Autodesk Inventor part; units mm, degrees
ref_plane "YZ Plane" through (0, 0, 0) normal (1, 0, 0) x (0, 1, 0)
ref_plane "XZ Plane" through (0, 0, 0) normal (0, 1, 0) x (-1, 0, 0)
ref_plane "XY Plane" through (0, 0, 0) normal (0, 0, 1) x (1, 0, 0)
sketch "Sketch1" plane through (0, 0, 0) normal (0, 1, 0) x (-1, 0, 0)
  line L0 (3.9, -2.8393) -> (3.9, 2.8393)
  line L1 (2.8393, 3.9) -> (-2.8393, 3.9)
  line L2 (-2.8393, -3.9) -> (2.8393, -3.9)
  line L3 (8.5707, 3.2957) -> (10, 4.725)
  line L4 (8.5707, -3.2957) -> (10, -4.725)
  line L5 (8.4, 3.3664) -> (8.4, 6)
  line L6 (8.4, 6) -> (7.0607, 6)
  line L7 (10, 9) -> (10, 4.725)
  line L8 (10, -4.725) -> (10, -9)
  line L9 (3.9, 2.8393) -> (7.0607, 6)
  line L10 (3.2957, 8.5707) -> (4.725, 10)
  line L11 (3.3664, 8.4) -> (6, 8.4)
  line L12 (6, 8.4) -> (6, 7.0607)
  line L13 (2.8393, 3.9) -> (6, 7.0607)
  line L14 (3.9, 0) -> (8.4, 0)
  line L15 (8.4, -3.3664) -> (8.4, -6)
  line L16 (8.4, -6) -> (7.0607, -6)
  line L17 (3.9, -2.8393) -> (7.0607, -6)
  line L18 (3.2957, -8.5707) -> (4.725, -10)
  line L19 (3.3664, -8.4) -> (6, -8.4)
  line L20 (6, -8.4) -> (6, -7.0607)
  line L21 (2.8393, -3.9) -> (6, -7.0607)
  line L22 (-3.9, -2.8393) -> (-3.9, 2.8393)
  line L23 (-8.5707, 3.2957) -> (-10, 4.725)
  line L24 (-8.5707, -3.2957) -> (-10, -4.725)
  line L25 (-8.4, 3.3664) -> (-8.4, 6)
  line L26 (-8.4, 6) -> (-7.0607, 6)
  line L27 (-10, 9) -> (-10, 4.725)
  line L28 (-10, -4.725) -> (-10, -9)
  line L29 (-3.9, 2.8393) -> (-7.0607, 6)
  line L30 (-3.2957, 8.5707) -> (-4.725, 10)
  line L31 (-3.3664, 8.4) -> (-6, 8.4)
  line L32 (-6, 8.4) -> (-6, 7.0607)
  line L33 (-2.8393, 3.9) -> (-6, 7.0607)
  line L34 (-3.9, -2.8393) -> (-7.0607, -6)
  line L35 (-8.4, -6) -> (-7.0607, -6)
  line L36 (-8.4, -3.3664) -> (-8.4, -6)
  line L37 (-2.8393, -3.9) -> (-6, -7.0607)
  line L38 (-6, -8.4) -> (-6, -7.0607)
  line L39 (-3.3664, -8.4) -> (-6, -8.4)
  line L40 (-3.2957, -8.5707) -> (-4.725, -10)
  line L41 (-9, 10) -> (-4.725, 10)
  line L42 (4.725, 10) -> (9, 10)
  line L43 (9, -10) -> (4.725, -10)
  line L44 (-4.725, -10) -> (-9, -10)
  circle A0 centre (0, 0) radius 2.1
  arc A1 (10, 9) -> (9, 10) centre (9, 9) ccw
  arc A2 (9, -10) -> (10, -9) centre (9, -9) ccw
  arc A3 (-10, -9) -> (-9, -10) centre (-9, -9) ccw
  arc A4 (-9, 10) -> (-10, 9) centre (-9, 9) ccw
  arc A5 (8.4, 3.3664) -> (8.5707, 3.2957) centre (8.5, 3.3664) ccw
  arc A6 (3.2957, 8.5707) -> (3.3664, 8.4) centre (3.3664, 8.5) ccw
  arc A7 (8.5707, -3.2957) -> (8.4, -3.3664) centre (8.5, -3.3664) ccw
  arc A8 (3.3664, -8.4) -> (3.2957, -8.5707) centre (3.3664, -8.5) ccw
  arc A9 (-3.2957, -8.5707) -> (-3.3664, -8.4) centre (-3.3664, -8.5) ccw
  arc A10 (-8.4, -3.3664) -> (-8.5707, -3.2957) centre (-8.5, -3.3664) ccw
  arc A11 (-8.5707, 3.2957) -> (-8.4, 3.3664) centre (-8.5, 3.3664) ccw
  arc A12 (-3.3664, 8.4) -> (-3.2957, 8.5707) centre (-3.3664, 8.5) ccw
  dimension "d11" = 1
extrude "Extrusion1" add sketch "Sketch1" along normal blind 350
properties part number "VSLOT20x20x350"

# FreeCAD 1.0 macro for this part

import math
import FreeCAD as App
import Part
import Sketcher
from FreeCAD import Vector
Q = App.Units.Quantity

doc = App.newDocument("Part")
body = doc.addObject("PartDesign::Body", "Body")

# Sketch on XZ plane
sketch1 = body.newObject("Sketcher::SketchObject", "Sketch")
sketch1.AttachmentSupport = (doc.getObject("XZ_Plane"), [""])
sketch1.MapMode = "FlatFace"
sketch1.addGeometry(Part.LineSegment(Vector(-7.0607, -6, 0), Vector(-3.9, -2.8393, 0)), False)
sketch1.addGeometry(Part.LineSegment(Vector(-3.9, -2.8393, 0), Vector(-3.9, 2.8393, 0)), False)
sketch1.addGeometry(Part.LineSegment(Vector(-3.9, 2.8393, 0), Vector(-7.0607, 6, 0)), False)
sketch1.addGeometry(Part.LineSegment(Vector(-7.0607, 6, 0), Vector(-8.4, 6, 0)), False)
sketch1.addGeometry(Part.LineSegment(Vector(-8.4, 6, 0), Vector(-8.4, 3.3664, 0)), False)
sketch1.addGeometry(Part.ArcOfCircle(Part.Circle(Vector(-8.5, 3.3664, 0), Vector(0, 0, 1), 0.1), math.radians(-135), math.radians(0)), False)
sketch1.addGeometry(Part.LineSegment(Vector(-8.5707, 3.2957, 0), Vector(-10, 4.725, 0)), False)
sketch1.addGeometry(Part.LineSegment(Vector(-10, 4.725, 0), Vector(-10, 9, 0)), False)
sketch1.addGeometry(Part.ArcOfCircle(Part.Circle(Vector(-9, 9, 0), Vector(0, 0, 1), 1), math.radians(90), math.radians(180)), False)
sketch1.addGeometry(Part.LineSegment(Vector(-9, 10, 0), Vector(-4.725, 10, 0)), False)
sketch1.addGeometry(Part.LineSegment(Vector(-4.725, 10, 0), Vector(-3.2957, 8.5707, 0)), False)
sketch1.addGeometry(Part.ArcOfCircle(Part.Circle(Vector(-3.3664, 8.5, 0), Vector(0, 0, 1), 0.099985), math.radians(-90), math.radians(45)), False)
sketch1.addGeometry(Part.LineSegment(Vector(-3.3664, 8.4, 0), Vector(-6, 8.4, 0)), False)
sketch1.addGeometry(Part.LineSegment(Vector(-6, 8.4, 0), Vector(-6, 7.0607, 0)), False)
sketch1.addGeometry(Part.LineSegment(Vector(-6, 7.0607, 0), Vector(-2.8393, 3.9, 0)), False)
sketch1.addGeometry(Part.LineSegment(Vector(-2.8393, 3.9, 0), Vector(2.8393, 3.9, 0)), False)
sketch1.addGeometry(Part.LineSegment(Vector(2.8393, 3.9, 0), Vector(6, 7.0607, 0)), False)
sketch1.addGeometry(Part.LineSegment(Vector(6, 7.0607, 0), Vector(6, 8.4, 0)), False)
sketch1.addGeometry(Part.LineSegment(Vector(6, 8.4, 0), Vector(3.3664, 8.4, 0)), False)
sketch1.addGeometry(Part.ArcOfCircle(Part.Circle(Vector(3.3664, 8.5, 0), Vector(0, 0, 1), 0.1), math.radians(135), math.radians(270)), False)
sketch1.addGeometry(Part.LineSegment(Vector(3.2957, 8.5707, 0), Vector(4.725, 10, 0)), False)
sketch1.addGeometry(Part.LineSegment(Vector(4.725, 10, 0), Vector(9, 10, 0)), False)
sketch1.addGeometry(Part.ArcOfCircle(Part.Circle(Vector(9, 9, 0), Vector(0, 0, 1), 1), math.radians(0), math.radians(90)), False)
sketch1.addGeometry(Part.LineSegment(Vector(10, 9, 0), Vector(10, 4.725, 0)), False)
sketch1.addGeometry(Part.LineSegment(Vector(10, 4.725, 0), Vector(8.5707, 3.2957, 0)), False)
sketch1.addGeometry(Part.ArcOfCircle(Part.Circle(Vector(8.5, 3.3664, 0), Vector(0, 0, 1), 0.099985), math.radians(180), math.radians(315)), False)
sketch1.addGeometry(Part.LineSegment(Vector(8.4, 3.3664, 0), Vector(8.4, 6, 0)), False)
sketch1.addGeometry(Part.LineSegment(Vector(8.4, 6, 0), Vector(7.0607, 6, 0)), False)
sketch1.addGeometry(Part.LineSegment(Vector(7.0607, 6, 0), Vector(3.9, 2.8393, 0)), False)
sketch1.addGeometry(Part.LineSegment(Vector(3.9, 2.8393, 0), Vector(3.9, -2.8393, 0)), False)
sketch1.addGeometry(Part.LineSegment(Vector(3.9, -2.8393, 0), Vector(7.0607, -6, 0)), False)
sketch1.addGeometry(Part.LineSegment(Vector(7.0607, -6, 0), Vector(8.4, -6, 0)), False)
sketch1.addGeometry(Part.LineSegment(Vector(8.4, -6, 0), Vector(8.4, -3.3664, 0)), False)
sketch1.addGeometry(Part.ArcOfCircle(Part.Circle(Vector(8.5, -3.3664, 0), Vector(0, 0, 1), 0.1), math.radians(45), math.radians(180)), False)
sketch1.addGeometry(Part.LineSegment(Vector(8.5707, -3.2957, 0), Vector(10, -4.725, 0)), False)
sketch1.addGeometry(Part.LineSegment(Vector(10, -4.725, 0), Vector(10, -9, 0)), False)
sketch1.addGeometry(Part.ArcOfCircle(Part.Circle(Vector(9, -9, 0), Vector(0, 0, 1), 1), math.radians(-90), math.radians(0)), False)
sketch1.addGeometry(Part.LineSegment(Vector(9, -10, 0), Vector(4.725, -10, 0)), False)
sketch1.addGeometry(Part.LineSegment(Vector(4.725, -10, 0), Vector(3.2957, -8.5707, 0)), False)
sketch1.addGeometry(Part.ArcOfCircle(Part.Circle(Vector(3.3664, -8.5, 0), Vector(0, 0, 1), 0.099985), math.radians(90), math.radians(225)), False)
sketch1.addGeometry(Part.LineSegment(Vector(3.3664, -8.4, 0), Vector(6, -8.4, 0)), False)
sketch1.addGeometry(Part.LineSegment(Vector(6, -8.4, 0), Vector(6, -7.0607, 0)), False)
sketch1.addGeometry(Part.LineSegment(Vector(6, -7.0607, 0), Vector(2.8393, -3.9, 0)), False)
sketch1.addGeometry(Part.LineSegment(Vector(2.8393, -3.9, 0), Vector(-2.8393, -3.9, 0)), False)
sketch1.addGeometry(Part.LineSegment(Vector(-2.8393, -3.9, 0), Vector(-6, -7.0607, 0)), False)
sketch1.addGeometry(Part.LineSegment(Vector(-6, -7.0607, 0), Vector(-6, -8.4, 0)), False)
sketch1.addGeometry(Part.LineSegment(Vector(-6, -8.4, 0), Vector(-3.3664, -8.4, 0)), False)
sketch1.addGeometry(Part.ArcOfCircle(Part.Circle(Vector(-3.3664, -8.5, 0), Vector(0, 0, 1), 0.1), math.radians(-45), math.radians(90)), False)
sketch1.addGeometry(Part.LineSegment(Vector(-3.2957, -8.5707, 0), Vector(-4.725, -10, 0)), False)
sketch1.addGeometry(Part.LineSegment(Vector(-4.725, -10, 0), Vector(-9, -10, 0)), False)
sketch1.addGeometry(Part.ArcOfCircle(Part.Circle(Vector(-9, -9, 0), Vector(0, 0, 1), 1), math.radians(180), math.radians(270)), False)
sketch1.addGeometry(Part.LineSegment(Vector(-10, -9, 0), Vector(-10, -4.725, 0)), False)
sketch1.addGeometry(Part.LineSegment(Vector(-10, -4.725, 0), Vector(-8.5707, -3.2957, 0)), False)
sketch1.addGeometry(Part.ArcOfCircle(Part.Circle(Vector(-8.5, -3.3664, 0), Vector(0, 0, 1), 0.099985), math.radians(0), math.radians(135)), False)
sketch1.addGeometry(Part.LineSegment(Vector(-8.4, -3.3664, 0), Vector(-8.4, -6, 0)), False)
sketch1.addGeometry(Part.LineSegment(Vector(-8.4, -6, 0), Vector(-7.0607, -6, 0)), False)
sketch1.addGeometry(Part.Circle(Vector(0, 0, 0), Vector(0, 0, 1), 2.1), False)
sketch1.addConstraint(Sketcher.Constraint("Coincident", 0, 2, 1, 1))
sketch1.addConstraint(Sketcher.Constraint("Coincident", 1, 2, 2, 1))
sketch1.addConstraint(Sketcher.Constraint("Coincident", 2, 2, 3, 1))
sketch1.addConstraint(Sketcher.Constraint("Coincident", 3, 2, 4, 1))
sketch1.addConstraint(Sketcher.Constraint("Tangent", 4, 2, 5, 2))
sketch1.addConstraint(Sketcher.Constraint("Tangent", 5, 1, 6, 1))
sketch1.addConstraint(Sketcher.Constraint("Coincident", 6, 2, 7, 1))
sketch1.addConstraint(Sketcher.Constraint("Tangent", 7, 2, 8, 2))
sketch1.addConstraint(Sketcher.Constraint("Tangent", 8, 1, 9, 1))
sketch1.addConstraint(Sketcher.Constraint("Coincident", 9, 2, 10, 1))
sketch1.addConstraint(Sketcher.Constraint("Tangent", 10, 2, 11, 2))
sketch1.addConstraint(Sketcher.Constraint("Tangent", 11, 1, 12, 1))
sketch1.addConstraint(Sketcher.Constraint("Coincident", 12, 2, 13, 1))
sketch1.addConstraint(Sketcher.Constraint("Coincident", 13, 2, 14, 1))
sketch1.addConstraint(Sketcher.Constraint("Coincident", 14, 2, 15, 1))
sketch1.addConstraint(Sketcher.Constraint("Coincident", 15, 2, 16, 1))
sketch1.addConstraint(Sketcher.Constraint("Coincident", 16, 2, 17, 1))
sketch1.addConstraint(Sketcher.Constraint("Coincident", 17, 2, 18, 1))
sketch1.addConstraint(Sketcher.Constraint("Tangent", 18, 2, 19, 2))
sketch1.addConstraint(Sketcher.Constraint("Tangent", 19, 1, 20, 1))
sketch1.addConstraint(Sketcher.Constraint("Coincident", 20, 2, 21, 1))
sketch1.addConstraint(Sketcher.Constraint("Tangent", 21, 2, 22, 2))
sketch1.addConstraint(Sketcher.Constraint("Tangent", 22, 1, 23, 1))
sketch1.addConstraint(Sketcher.Constraint("Coincident", 23, 2, 24, 1))
sketch1.addConstraint(Sketcher.Constraint("Tangent", 24, 2, 25, 2))
sketch1.addConstraint(Sketcher.Constraint("Tangent", 25, 1, 26, 1))
sketch1.addConstraint(Sketcher.Constraint("Coincident", 26, 2, 27, 1))
sketch1.addConstraint(Sketcher.Constraint("Coincident", 27, 2, 28, 1))
sketch1.addConstraint(Sketcher.Constraint("Coincident", 28, 2, 29, 1))
sketch1.addConstraint(Sketcher.Constraint("Coincident", 29, 2, 30, 1))
sketch1.addConstraint(Sketcher.Constraint("Coincident", 30, 2, 31, 1))
sketch1.addConstraint(Sketcher.Constraint("Coincident", 31, 2, 32, 1))
sketch1.addConstraint(Sketcher.Constraint("Tangent", 32, 2, 33, 2))
sketch1.addConstraint(Sketcher.Constraint("Tangent", 33, 1, 34, 1))
sketch1.addConstraint(Sketcher.Constraint("Coincident", 34, 2, 35, 1))
sketch1.addConstraint(Sketcher.Constraint("Tangent", 35, 2, 36, 2))
sketch1.addConstraint(Sketcher.Constraint("Tangent", 36, 1, 37, 1))
sketch1.addConstraint(Sketcher.Constraint("Coincident", 37, 2, 38, 1))
sketch1.addConstraint(Sketcher.Constraint("Tangent", 38, 2, 39, 2))
sketch1.addConstraint(Sketcher.Constraint("Tangent", 39, 1, 40, 1))
sketch1.addConstraint(Sketcher.Constraint("Coincident", 40, 2, 41, 1))
sketch1.addConstraint(Sketcher.Constraint("Coincident", 41, 2, 42, 1))
sketch1.addConstraint(Sketcher.Constraint("Coincident", 42, 2, 43, 1))
sketch1.addConstraint(Sketcher.Constraint("Coincident", 43, 2, 44, 1))
sketch1.addConstraint(Sketcher.Constraint("Coincident", 44, 2, 45, 1))
sketch1.addConstraint(Sketcher.Constraint("Coincident", 45, 2, 46, 1))
sketch1.addConstraint(Sketcher.Constraint("Tangent", 46, 2, 47, 2))
sketch1.addConstraint(Sketcher.Constraint("Tangent", 47, 1, 48, 1))
sketch1.addConstraint(Sketcher.Constraint("Coincident", 48, 2, 49, 1))
sketch1.addConstraint(Sketcher.Constraint("Tangent", 49, 2, 50, 2))
sketch1.addConstraint(Sketcher.Constraint("Tangent", 50, 1, 51, 1))
sketch1.addConstraint(Sketcher.Constraint("Coincident", 51, 2, 52, 1))
sketch1.addConstraint(Sketcher.Constraint("Tangent", 52, 2, 53, 2))
sketch1.addConstraint(Sketcher.Constraint("Tangent", 53, 1, 54, 1))
sketch1.addConstraint(Sketcher.Constraint("Coincident", 54, 2, 55, 1))
sketch1.addConstraint(Sketcher.Constraint("Coincident", 55, 2, 0, 1))
sketch1.addConstraint(Sketcher.Constraint("Vertical", 1))
sketch1.addConstraint(Sketcher.Constraint("Horizontal", 3))
sketch1.addConstraint(Sketcher.Constraint("Vertical", 4))
sketch1.addConstraint(Sketcher.Constraint("Vertical", 7))
sketch1.addConstraint(Sketcher.Constraint("Horizontal", 9))
sketch1.addConstraint(Sketcher.Constraint("Horizontal", 12))
sketch1.addConstraint(Sketcher.Constraint("Vertical", 13))
sketch1.addConstraint(Sketcher.Constraint("Horizontal", 15))
sketch1.addConstraint(Sketcher.Constraint("Vertical", 17))
sketch1.addConstraint(Sketcher.Constraint("Horizontal", 18))
sketch1.addConstraint(Sketcher.Constraint("Horizontal", 21))
sketch1.addConstraint(Sketcher.Constraint("Vertical", 23))
sketch1.addConstraint(Sketcher.Constraint("Vertical", 26))
sketch1.addConstraint(Sketcher.Constraint("Horizontal", 27))
sketch1.addConstraint(Sketcher.Constraint("Vertical", 29))
sketch1.addConstraint(Sketcher.Constraint("Horizontal", 31))
sketch1.addConstraint(Sketcher.Constraint("Vertical", 32))
sketch1.addConstraint(Sketcher.Constraint("Vertical", 35))
sketch1.addConstraint(Sketcher.Constraint("Horizontal", 37))
sketch1.addConstraint(Sketcher.Constraint("Horizontal", 40))
sketch1.addConstraint(Sketcher.Constraint("Vertical", 41))
sketch1.addConstraint(Sketcher.Constraint("Horizontal", 43))
sketch1.addConstraint(Sketcher.Constraint("Vertical", 45))
sketch1.addConstraint(Sketcher.Constraint("Horizontal", 46))
sketch1.addConstraint(Sketcher.Constraint("Horizontal", 49))
sketch1.addConstraint(Sketcher.Constraint("Vertical", 51))
sketch1.addConstraint(Sketcher.Constraint("Vertical", 54))
sketch1.addConstraint(Sketcher.Constraint("Horizontal", 55))
sketch1.addConstraint(Sketcher.Constraint("Coincident", 56, 3, -1, 1))
sketch1.addConstraint(Sketcher.Constraint("Equal", 5, 11))
sketch1.addConstraint(Sketcher.Constraint("Equal", 11, 19))
sketch1.addConstraint(Sketcher.Constraint("Equal", 8, 22))
sketch1.addConstraint(Sketcher.Constraint("Equal", 19, 25))
sketch1.addConstraint(Sketcher.Constraint("Equal", 25, 33))
sketch1.addConstraint(Sketcher.Constraint("Equal", 22, 36))
sketch1.addConstraint(Sketcher.Constraint("Equal", 33, 39))
sketch1.addConstraint(Sketcher.Constraint("Equal", 39, 47))
sketch1.addConstraint(Sketcher.Constraint("Equal", 36, 50))
sketch1.addConstraint(Sketcher.Constraint("Equal", 47, 53))
sketch1.addConstraint(Sketcher.Constraint("Symmetric", 5, 3, 33, 3, -1, 1))
sketch1.addConstraint(Sketcher.Constraint("Symmetric", 8, 3, 36, 3, -1, 1))
sketch1.addConstraint(Sketcher.Constraint("Symmetric", 11, 3, 39, 3, -1, 1))
sketch1.addConstraint(Sketcher.Constraint("Symmetric", 19, 3, 47, 3, -1, 1))
sketch1.addConstraint(Sketcher.Constraint("Symmetric", 22, 3, 50, 3, -1, 1))
sketch1.addConstraint(Sketcher.Constraint("Symmetric", 25, 3, 53, 3, -1, 1))
sketch1.addConstraint(Sketcher.Constraint("Symmetric", 0, 2, 28, 2, -1, 1))
sketch1.addConstraint(Sketcher.Constraint("Symmetric", 2, 2, 30, 2, -1, 1))
sketch1.addConstraint(Sketcher.Constraint("Symmetric", 13, 2, 41, 2, -1, 1))
sketch1.addConstraint(Sketcher.Constraint("Symmetric", 14, 2, 42, 2, -1, 1))
sketch1.addConstraint(Sketcher.Constraint("Symmetric", 16, 2, 44, 2, -1, 1))
sketch1.addConstraint(Sketcher.Constraint("Symmetric", 27, 2, 55, 2, -1, 1))
sketch1.addConstraint(Sketcher.Constraint("Symmetric", 11, 3, 19, 3, -2))
sketch1.addConstraint(Sketcher.Constraint("Symmetric", 8, 3, 22, 3, -2))
sketch1.addConstraint(Sketcher.Constraint("Symmetric", 5, 3, 25, 3, -2))
sketch1.addConstraint(Sketcher.Constraint("Symmetric", 13, 2, 16, 2, -2))
sketch1.addConstraint(Sketcher.Constraint("Symmetric", 2, 2, 27, 2, -2))
sketch1.addConstraint(Sketcher.Constraint("Perpendicular", 0, 2))
sketch1.addConstraint(Sketcher.Constraint("Parallel", 2, 6))
sketch1.addConstraint(Sketcher.Constraint("Parallel", 6, 10))
sketch1.addConstraint(Sketcher.Constraint("Parallel", 10, 14))
sketch1.addConstraint(Sketcher.Constraint("Perpendicular", 14, 16))
sketch1.addConstraint(Sketcher.Constraint("Parallel", 16, 20))
sketch1.addConstraint(Sketcher.Constraint("Parallel", 20, 24))
sketch1.addConstraint(Sketcher.Constraint("Perpendicular", 28, 30))
sketch1.addConstraint(Sketcher.Constraint("Parallel", 30, 34))
sketch1.addConstraint(Sketcher.Constraint("Parallel", 34, 38))
sketch1.addConstraint(Sketcher.Constraint("Perpendicular", 42, 44))
sketch1.addConstraint(Sketcher.Constraint("Parallel", 44, 48))
sketch1.addConstraint(Sketcher.Constraint("Parallel", 48, 52))
sketch1.addConstraint(Sketcher.Constraint("Horizontal", 10, 2, 19, 1))
sketch1.addConstraint(Sketcher.Constraint("Equal", 43, 1))
sketch1.addConstraint(Sketcher.Constraint("Equal", 46, 4))
sketch1.addConstraint(Sketcher.Constraint("Equal", 49, 7))
sketch1.addConstraint(Sketcher.Constraint("Equal", 55, 13))
sketch1.addConstraint(Sketcher.Constraint("Equal", 6, 10))
sketch1.addConstraint(Sketcher.Constraint("Equal", 2, 14))
sketch1.addConstraint(Sketcher.Constraint("Radius", 8, Q("1 mm")))
sketch1.addConstraint(Sketcher.Constraint("Diameter", 56, Q("4.2 mm")))
sketch1.addConstraint(Sketcher.Constraint("Radius", 5, Q("0.1 mm")))
sketch1.addConstraint(Sketcher.Constraint("DistanceX", 8, 3, -1, 1, Q("9 mm")))
sketch1.addConstraint(Sketcher.Constraint("DistanceY", -1, 1, 2, 2, Q("6 mm")))
sketch1.addConstraint(Sketcher.Constraint("DistanceX", 5, 3, -1, 1, Q("8.5 mm")))
sketch1.addConstraint(Sketcher.Constraint("DistanceX", 0, 2, -1, 1, Q("3.9 mm")))
sketch1.addConstraint(Sketcher.Constraint("Distance", 0, Q("4.47 mm")))
sketch1.addConstraint(Sketcher.Constraint("DistanceX", 9, 1, 9, 2, Q("4.275 mm")))
pad1 = body.newObject("PartDesign::Pad", "Pad")
pad1.Profile = sketch1
pad1.Length = 350
pad1.Reversed = True

doc.recompute()
